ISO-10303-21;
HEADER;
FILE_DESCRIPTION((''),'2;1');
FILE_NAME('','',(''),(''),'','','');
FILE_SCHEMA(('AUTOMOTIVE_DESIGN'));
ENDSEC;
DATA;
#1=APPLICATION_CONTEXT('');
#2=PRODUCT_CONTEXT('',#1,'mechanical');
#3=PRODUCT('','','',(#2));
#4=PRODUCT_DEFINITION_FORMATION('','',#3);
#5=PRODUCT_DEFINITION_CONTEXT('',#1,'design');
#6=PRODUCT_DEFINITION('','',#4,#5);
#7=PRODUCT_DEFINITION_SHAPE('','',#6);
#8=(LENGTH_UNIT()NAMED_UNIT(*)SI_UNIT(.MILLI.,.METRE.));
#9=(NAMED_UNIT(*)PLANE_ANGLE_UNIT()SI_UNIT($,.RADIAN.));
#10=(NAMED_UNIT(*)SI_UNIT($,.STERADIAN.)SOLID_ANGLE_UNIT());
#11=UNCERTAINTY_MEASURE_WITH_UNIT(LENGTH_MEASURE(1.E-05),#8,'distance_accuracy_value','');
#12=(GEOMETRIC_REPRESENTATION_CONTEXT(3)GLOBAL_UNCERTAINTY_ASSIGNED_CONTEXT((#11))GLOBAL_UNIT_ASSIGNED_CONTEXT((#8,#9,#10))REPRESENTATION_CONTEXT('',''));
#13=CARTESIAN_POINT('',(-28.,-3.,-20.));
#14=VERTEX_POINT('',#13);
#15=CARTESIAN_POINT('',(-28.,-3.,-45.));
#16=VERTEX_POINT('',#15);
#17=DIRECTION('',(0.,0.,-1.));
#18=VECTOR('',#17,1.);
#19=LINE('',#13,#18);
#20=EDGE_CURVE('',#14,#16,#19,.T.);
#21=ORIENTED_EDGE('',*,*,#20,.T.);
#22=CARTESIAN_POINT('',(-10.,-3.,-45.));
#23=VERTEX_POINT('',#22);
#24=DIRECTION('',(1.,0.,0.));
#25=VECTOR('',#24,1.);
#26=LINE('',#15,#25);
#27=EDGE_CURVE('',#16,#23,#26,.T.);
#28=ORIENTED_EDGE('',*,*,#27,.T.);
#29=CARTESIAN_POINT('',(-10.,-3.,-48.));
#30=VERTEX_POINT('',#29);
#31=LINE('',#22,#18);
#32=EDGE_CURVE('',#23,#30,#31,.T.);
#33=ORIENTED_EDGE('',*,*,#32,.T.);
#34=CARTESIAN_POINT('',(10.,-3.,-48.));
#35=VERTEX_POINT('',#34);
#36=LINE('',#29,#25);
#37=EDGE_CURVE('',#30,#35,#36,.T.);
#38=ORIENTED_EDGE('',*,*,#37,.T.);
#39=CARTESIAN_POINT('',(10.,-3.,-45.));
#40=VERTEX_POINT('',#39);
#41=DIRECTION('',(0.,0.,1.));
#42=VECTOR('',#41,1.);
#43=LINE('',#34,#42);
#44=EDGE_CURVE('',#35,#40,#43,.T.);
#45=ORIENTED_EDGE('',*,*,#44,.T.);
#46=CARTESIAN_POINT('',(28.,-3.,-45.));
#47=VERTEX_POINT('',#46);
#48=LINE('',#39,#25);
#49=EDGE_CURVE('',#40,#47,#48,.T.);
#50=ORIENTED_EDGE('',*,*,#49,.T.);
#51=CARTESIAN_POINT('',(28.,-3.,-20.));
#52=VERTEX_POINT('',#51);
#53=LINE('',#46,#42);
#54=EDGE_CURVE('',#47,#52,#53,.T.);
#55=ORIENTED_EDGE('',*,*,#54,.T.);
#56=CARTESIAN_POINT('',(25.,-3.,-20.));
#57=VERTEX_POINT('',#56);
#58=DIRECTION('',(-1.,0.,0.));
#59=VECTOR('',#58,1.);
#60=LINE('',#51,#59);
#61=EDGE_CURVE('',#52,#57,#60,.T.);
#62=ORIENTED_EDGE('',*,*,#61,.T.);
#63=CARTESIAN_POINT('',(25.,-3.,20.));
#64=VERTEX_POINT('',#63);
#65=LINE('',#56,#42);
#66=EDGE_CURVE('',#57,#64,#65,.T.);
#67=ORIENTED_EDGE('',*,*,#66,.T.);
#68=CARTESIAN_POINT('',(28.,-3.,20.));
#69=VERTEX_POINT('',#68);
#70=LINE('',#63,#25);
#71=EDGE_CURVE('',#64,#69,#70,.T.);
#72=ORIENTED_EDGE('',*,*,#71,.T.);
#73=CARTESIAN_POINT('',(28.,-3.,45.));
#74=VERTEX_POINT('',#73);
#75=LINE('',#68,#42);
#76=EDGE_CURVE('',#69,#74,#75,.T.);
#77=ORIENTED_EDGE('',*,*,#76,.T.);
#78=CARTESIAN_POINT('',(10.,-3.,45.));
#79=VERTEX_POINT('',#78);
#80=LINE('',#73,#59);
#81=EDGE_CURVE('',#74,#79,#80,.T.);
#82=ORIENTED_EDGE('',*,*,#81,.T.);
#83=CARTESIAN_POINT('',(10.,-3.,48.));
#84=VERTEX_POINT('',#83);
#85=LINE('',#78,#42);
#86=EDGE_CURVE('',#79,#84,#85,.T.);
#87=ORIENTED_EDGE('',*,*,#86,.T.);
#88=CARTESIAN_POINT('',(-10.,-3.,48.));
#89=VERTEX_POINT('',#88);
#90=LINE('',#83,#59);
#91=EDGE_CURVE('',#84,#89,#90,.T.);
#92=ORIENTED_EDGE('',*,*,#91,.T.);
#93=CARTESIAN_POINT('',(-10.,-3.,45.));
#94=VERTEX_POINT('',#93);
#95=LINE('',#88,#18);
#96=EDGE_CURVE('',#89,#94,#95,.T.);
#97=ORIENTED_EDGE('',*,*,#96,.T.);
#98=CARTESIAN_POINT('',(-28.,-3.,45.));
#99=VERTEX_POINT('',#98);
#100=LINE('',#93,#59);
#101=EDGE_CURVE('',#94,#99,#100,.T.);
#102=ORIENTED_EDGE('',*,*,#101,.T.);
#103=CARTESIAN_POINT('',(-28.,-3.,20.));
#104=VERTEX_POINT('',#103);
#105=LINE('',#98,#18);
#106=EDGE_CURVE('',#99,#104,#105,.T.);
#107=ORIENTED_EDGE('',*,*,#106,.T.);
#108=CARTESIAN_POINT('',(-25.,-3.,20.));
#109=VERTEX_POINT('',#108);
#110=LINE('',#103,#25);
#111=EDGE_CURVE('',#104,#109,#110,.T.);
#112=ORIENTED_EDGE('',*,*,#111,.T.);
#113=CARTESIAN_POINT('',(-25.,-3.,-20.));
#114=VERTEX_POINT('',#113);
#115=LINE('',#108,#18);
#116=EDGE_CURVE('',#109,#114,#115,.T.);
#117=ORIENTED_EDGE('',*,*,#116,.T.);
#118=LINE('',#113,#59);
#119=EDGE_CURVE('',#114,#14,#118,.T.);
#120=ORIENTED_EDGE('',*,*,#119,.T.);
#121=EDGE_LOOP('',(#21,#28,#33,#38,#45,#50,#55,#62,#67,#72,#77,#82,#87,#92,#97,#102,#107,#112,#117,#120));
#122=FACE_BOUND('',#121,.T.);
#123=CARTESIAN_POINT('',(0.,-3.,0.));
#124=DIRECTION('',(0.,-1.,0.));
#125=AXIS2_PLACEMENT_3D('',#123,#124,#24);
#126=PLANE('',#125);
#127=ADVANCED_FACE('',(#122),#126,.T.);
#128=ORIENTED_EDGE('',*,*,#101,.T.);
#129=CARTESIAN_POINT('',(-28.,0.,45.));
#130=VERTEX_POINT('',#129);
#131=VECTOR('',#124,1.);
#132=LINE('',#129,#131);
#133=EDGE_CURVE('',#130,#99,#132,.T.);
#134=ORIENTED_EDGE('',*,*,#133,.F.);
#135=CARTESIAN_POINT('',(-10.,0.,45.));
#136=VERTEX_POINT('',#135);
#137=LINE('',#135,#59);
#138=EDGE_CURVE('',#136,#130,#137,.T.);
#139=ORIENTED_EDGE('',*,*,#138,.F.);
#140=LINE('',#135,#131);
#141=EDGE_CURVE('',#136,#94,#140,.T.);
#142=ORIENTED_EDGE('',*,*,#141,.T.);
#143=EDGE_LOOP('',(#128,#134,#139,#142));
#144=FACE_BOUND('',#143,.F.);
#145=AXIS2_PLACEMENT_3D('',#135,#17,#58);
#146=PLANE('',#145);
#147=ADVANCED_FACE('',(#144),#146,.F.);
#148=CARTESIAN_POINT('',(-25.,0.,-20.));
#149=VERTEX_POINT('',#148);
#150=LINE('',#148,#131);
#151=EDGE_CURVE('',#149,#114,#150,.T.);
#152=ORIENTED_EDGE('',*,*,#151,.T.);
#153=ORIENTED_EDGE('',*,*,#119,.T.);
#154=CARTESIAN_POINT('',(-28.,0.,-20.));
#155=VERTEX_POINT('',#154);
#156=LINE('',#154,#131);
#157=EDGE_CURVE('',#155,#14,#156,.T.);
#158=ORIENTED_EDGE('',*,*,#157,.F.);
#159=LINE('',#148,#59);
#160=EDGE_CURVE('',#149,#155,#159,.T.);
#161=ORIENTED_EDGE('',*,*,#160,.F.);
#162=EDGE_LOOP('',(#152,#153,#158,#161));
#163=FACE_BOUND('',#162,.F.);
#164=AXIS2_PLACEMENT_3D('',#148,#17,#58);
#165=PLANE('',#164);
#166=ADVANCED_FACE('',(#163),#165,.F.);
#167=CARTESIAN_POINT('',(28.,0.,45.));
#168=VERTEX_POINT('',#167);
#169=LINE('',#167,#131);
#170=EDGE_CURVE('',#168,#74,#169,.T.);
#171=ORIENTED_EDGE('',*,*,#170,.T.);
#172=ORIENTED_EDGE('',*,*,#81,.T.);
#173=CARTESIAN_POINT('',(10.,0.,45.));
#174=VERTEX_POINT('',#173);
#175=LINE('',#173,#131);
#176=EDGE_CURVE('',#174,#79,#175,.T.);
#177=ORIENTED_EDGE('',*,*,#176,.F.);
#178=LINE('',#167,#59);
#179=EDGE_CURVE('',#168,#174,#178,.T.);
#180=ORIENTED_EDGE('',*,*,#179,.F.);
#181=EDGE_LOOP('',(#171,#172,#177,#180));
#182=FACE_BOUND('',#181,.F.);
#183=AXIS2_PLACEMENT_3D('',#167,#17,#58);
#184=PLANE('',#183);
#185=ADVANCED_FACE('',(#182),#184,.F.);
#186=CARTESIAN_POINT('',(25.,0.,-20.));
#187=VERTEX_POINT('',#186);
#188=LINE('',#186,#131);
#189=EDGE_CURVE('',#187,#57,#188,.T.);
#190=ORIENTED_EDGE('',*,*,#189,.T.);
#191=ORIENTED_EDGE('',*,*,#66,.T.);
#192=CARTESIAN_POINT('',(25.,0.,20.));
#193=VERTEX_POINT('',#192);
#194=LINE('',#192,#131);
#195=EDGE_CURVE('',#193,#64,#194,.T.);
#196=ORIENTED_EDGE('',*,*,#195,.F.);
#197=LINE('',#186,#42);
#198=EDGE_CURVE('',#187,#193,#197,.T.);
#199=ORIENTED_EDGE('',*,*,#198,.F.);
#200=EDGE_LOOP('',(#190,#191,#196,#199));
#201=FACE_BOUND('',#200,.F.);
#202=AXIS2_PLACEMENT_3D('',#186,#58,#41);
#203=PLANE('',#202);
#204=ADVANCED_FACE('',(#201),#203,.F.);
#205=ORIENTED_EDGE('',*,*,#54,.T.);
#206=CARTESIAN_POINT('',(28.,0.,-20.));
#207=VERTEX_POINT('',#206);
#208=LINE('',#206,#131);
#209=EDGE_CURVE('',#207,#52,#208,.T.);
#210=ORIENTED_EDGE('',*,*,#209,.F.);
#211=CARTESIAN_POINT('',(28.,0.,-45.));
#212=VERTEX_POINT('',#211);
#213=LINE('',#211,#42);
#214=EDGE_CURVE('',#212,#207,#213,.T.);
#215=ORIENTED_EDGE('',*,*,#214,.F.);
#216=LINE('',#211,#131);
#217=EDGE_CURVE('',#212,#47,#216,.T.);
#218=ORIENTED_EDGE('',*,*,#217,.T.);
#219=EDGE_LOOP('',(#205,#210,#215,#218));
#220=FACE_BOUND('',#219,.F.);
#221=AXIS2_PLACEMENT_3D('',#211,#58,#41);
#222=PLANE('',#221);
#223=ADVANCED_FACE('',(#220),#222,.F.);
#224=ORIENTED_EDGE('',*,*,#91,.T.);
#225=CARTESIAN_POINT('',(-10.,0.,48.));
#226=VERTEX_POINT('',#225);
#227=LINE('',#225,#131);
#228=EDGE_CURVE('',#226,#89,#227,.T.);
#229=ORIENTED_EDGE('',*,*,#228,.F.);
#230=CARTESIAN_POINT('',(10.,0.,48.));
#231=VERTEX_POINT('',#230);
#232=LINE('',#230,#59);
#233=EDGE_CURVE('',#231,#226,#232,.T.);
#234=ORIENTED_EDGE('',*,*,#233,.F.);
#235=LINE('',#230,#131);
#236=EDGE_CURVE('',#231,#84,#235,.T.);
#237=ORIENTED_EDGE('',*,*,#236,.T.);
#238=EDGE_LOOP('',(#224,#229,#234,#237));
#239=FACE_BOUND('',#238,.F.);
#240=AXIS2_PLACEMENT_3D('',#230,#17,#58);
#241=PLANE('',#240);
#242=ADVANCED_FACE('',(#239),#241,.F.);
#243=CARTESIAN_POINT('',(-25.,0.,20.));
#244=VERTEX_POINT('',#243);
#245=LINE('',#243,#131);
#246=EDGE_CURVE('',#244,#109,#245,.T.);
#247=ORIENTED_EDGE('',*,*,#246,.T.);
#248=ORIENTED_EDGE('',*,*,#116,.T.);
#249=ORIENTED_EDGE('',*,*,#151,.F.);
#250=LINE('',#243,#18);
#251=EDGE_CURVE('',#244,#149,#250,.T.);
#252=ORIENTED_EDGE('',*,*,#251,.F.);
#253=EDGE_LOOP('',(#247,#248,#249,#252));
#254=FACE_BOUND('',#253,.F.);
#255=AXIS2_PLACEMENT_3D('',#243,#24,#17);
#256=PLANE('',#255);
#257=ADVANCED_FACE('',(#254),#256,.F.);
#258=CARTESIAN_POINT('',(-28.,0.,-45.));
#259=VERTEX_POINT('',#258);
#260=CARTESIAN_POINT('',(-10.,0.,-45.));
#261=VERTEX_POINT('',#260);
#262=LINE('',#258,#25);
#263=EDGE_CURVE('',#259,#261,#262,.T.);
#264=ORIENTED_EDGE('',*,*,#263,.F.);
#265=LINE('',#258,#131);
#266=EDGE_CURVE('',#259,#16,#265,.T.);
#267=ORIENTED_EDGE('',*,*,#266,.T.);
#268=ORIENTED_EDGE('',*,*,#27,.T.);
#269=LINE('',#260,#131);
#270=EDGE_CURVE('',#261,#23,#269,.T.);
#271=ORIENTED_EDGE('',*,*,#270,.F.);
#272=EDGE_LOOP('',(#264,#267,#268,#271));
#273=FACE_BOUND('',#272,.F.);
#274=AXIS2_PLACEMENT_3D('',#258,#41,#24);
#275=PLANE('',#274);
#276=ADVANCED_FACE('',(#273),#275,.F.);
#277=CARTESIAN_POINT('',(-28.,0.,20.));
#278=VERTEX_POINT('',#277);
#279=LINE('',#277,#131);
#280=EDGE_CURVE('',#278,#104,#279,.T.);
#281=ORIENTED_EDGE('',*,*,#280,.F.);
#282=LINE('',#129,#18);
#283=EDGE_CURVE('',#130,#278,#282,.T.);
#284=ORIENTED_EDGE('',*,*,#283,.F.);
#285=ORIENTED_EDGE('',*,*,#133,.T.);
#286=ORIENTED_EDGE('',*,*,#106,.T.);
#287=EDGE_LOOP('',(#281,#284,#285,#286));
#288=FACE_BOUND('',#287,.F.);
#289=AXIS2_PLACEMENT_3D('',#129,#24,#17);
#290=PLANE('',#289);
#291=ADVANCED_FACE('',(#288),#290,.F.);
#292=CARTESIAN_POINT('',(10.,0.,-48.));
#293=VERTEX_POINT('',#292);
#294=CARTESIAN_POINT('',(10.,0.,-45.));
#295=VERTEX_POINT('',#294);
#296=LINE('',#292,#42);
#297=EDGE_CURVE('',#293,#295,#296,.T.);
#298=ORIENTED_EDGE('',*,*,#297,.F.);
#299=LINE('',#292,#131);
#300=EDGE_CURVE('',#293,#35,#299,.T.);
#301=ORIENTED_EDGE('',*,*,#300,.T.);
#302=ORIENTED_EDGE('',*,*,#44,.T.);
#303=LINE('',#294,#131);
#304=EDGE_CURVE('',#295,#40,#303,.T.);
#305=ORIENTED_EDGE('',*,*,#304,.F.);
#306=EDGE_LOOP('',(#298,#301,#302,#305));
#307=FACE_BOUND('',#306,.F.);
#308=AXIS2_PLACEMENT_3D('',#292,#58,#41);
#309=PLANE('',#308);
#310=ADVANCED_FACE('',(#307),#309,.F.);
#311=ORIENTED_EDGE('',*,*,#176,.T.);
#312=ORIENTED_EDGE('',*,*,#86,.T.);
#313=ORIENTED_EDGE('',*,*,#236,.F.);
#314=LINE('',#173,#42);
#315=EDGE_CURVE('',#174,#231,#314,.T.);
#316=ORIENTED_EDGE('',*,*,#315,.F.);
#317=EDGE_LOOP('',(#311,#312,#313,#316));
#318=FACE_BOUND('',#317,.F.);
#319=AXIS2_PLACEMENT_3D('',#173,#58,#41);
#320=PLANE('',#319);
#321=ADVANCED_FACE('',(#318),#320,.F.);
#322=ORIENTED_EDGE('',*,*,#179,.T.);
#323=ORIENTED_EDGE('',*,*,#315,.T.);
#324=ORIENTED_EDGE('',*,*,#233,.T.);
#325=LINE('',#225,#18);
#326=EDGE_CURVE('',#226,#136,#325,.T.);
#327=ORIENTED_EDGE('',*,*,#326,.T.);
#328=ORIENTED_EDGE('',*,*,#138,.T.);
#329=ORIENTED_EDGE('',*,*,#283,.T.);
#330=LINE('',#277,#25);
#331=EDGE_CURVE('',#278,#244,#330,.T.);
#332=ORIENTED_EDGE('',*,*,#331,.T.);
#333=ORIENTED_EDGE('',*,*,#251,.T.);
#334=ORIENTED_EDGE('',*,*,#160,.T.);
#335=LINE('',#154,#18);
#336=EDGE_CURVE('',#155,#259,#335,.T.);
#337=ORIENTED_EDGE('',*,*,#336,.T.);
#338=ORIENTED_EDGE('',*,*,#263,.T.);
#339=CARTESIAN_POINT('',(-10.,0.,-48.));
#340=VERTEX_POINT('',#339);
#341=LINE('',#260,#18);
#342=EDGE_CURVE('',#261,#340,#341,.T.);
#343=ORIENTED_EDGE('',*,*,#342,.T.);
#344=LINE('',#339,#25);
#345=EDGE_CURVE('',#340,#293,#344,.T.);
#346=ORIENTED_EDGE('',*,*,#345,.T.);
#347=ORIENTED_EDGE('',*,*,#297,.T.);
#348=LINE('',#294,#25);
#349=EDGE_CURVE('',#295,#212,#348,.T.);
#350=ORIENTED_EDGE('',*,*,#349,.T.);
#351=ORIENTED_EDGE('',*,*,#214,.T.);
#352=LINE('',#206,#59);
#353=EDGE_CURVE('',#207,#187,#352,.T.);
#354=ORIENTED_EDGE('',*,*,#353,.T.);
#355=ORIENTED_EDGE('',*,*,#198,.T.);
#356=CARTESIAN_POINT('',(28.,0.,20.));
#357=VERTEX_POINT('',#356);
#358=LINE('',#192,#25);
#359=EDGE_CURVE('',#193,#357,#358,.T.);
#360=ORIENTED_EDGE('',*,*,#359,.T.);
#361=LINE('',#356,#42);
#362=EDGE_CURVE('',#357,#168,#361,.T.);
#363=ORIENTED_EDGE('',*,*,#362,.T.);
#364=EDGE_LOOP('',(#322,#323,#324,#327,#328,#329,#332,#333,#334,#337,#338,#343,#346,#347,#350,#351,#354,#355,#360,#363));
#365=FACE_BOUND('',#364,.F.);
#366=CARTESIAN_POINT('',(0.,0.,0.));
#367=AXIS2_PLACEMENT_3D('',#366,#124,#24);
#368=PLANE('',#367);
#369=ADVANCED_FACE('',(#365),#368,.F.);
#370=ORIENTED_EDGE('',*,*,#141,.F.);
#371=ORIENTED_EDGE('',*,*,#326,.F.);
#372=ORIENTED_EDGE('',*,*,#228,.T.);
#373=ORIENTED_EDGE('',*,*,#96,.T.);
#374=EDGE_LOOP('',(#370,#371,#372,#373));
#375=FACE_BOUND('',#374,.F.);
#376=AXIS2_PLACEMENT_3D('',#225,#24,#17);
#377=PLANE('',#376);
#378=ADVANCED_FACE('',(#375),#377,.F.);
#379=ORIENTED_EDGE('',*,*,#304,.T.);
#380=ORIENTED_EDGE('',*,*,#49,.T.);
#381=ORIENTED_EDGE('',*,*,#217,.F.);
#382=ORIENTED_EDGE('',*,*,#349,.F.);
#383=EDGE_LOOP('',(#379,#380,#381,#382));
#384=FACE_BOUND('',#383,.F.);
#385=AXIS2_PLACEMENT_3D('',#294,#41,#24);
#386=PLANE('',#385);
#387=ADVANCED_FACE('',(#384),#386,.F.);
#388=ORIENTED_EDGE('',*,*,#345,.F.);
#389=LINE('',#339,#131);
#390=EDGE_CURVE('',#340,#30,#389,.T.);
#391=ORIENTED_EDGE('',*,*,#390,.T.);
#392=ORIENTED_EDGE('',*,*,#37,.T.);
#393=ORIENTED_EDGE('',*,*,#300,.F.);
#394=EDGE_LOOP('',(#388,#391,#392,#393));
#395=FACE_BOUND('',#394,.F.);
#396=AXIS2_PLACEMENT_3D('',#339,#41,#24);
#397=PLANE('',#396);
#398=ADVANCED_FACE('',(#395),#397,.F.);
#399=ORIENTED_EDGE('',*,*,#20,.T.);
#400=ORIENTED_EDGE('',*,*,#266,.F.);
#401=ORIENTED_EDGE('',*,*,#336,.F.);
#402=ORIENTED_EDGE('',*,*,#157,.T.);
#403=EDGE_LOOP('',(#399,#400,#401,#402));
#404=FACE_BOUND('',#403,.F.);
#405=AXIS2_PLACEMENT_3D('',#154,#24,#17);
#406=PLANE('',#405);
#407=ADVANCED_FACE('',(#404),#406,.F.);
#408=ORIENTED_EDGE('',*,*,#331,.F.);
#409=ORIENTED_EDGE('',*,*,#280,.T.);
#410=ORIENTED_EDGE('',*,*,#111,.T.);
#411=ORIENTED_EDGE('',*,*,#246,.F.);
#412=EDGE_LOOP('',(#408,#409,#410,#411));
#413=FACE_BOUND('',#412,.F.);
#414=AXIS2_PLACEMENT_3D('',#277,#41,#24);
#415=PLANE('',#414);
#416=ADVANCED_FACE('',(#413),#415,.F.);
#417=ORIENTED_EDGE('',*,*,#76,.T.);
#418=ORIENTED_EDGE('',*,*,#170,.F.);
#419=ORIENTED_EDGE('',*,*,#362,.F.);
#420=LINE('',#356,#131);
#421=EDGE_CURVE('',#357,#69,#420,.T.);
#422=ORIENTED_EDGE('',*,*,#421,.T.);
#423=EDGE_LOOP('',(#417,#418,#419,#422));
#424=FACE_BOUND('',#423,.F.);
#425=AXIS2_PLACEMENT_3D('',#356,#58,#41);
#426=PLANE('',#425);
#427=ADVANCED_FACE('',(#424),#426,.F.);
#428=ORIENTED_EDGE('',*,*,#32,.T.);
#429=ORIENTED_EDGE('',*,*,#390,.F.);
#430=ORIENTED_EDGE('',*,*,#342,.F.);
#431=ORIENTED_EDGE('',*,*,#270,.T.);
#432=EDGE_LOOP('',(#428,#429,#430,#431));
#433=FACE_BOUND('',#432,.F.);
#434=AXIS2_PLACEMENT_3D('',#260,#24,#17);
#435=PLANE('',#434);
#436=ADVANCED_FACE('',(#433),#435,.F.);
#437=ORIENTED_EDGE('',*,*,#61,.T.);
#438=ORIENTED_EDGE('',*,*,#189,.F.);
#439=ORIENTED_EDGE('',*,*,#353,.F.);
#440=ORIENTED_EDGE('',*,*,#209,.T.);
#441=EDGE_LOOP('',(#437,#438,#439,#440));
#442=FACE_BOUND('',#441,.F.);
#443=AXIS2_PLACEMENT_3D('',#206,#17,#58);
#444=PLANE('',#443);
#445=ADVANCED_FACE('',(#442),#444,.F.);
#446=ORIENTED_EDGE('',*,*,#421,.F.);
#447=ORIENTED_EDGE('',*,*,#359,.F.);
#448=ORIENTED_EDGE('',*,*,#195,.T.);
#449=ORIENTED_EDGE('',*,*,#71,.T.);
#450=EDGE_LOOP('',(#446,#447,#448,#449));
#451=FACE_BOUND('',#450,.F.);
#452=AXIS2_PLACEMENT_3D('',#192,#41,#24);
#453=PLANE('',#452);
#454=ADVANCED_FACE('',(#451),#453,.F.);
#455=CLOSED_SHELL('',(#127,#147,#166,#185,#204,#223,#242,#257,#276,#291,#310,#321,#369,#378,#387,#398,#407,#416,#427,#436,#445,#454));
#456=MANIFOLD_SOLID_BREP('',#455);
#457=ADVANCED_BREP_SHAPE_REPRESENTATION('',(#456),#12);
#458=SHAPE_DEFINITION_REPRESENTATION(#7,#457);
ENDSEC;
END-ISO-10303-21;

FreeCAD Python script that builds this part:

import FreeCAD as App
import Part
import Sketcher
Q = App.Units.Quantity

doc = App.newDocument("Part")
body = doc.addObject("PartDesign::Body", "Body")

# Sketch on XZ plane
sketch1 = body.newObject("Sketcher::SketchObject", "Sketch")
sketch1.AttachmentSupport = (doc.getObject("XZ_Plane"), [""])
sketch1.MapMode = "FlatFace"
sketch1.addGeometry(Part.LineSegment(App.Vector(10, 48, 0), App.Vector(-10, 48, 0)), False)
sketch1.addGeometry(Part.LineSegment(App.Vector(-10, 48, 0), App.Vector(-10, 45, 0)), False)
sketch1.addGeometry(Part.LineSegment(App.Vector(-10, 45, 0), App.Vector(-28, 45, 0)), False)
sketch1.addGeometry(Part.LineSegment(App.Vector(-28, 45, 0), App.Vector(-28, 20, 0)), False)
sketch1.addGeometry(Part.LineSegment(App.Vector(-28, 20, 0), App.Vector(-25, 20, 0)), False)
sketch1.addGeometry(Part.LineSegment(App.Vector(-25, 20, 0), App.Vector(-25, -20, 0)), False)
sketch1.addGeometry(Part.LineSegment(App.Vector(-25, -20, 0), App.Vector(-28, -20, 0)), False)
sketch1.addGeometry(Part.LineSegment(App.Vector(-28, -20, 0), App.Vector(-28, -45, 0)), False)
sketch1.addGeometry(Part.LineSegment(App.Vector(-28, -45, 0), App.Vector(-10, -45, 0)), False)
sketch1.addGeometry(Part.LineSegment(App.Vector(-10, -45, 0), App.Vector(-10, -48, 0)), False)
sketch1.addGeometry(Part.LineSegment(App.Vector(-10, -48, 0), App.Vector(10, -48, 0)), False)
sketch1.addGeometry(Part.LineSegment(App.Vector(10, -48, 0), App.Vector(10, -45, 0)), False)
sketch1.addGeometry(Part.LineSegment(App.Vector(10, -45, 0), App.Vector(28, -45, 0)), False)
sketch1.addGeometry(Part.LineSegment(App.Vector(28, -45, 0), App.Vector(28, -20, 0)), False)
sketch1.addGeometry(Part.LineSegment(App.Vector(28, -20, 0), App.Vector(25, -20, 0)), False)
sketch1.addGeometry(Part.LineSegment(App.Vector(25, -20, 0), App.Vector(25, 20, 0)), False)
sketch1.addGeometry(Part.LineSegment(App.Vector(25, 20, 0), App.Vector(28, 20, 0)), False)
sketch1.addGeometry(Part.LineSegment(App.Vector(28, 20, 0), App.Vector(28, 45, 0)), False)
sketch1.addGeometry(Part.LineSegment(App.Vector(28, 45, 0), App.Vector(10, 45, 0)), False)
sketch1.addGeometry(Part.LineSegment(App.Vector(10, 45, 0), App.Vector(10, 48, 0)), False)
sketch1.addConstraint(Sketcher.Constraint("Coincident", 0, 2, 1, 1))
sketch1.addConstraint(Sketcher.Constraint("Coincident", 1, 2, 2, 1))
sketch1.addConstraint(Sketcher.Constraint("Coincident", 2, 2, 3, 1))
sketch1.addConstraint(Sketcher.Constraint("Coincident", 3, 2, 4, 1))
sketch1.addConstraint(Sketcher.Constraint("Coincident", 4, 2, 5, 1))
sketch1.addConstraint(Sketcher.Constraint("Coincident", 5, 2, 6, 1))
sketch1.addConstraint(Sketcher.Constraint("Coincident", 6, 2, 7, 1))
sketch1.addConstraint(Sketcher.Constraint("Coincident", 7, 2, 8, 1))
sketch1.addConstraint(Sketcher.Constraint("Coincident", 8, 2, 9, 1))
sketch1.addConstraint(Sketcher.Constraint("Coincident", 9, 2, 10, 1))
sketch1.addConstraint(Sketcher.Constraint("Coincident", 10, 2, 11, 1))
sketch1.addConstraint(Sketcher.Constraint("Coincident", 11, 2, 12, 1))
sketch1.addConstraint(Sketcher.Constraint("Coincident", 12, 2, 13, 1))
sketch1.addConstraint(Sketcher.Constraint("Coincident", 13, 2, 14, 1))
sketch1.addConstraint(Sketcher.Constraint("Coincident", 14, 2, 15, 1))
sketch1.addConstraint(Sketcher.Constraint("Coincident", 15, 2, 16, 1))
sketch1.addConstraint(Sketcher.Constraint("Coincident", 16, 2, 17, 1))
sketch1.addConstraint(Sketcher.Constraint("Coincident", 17, 2, 18, 1))
sketch1.addConstraint(Sketcher.Constraint("Coincident", 18, 2, 19, 1))
sketch1.addConstraint(Sketcher.Constraint("Coincident", 19, 2, 0, 1))
sketch1.addConstraint(Sketcher.Constraint("Horizontal", 0))
sketch1.addConstraint(Sketcher.Constraint("Vertical", 1))
sketch1.addConstraint(Sketcher.Constraint("Horizontal", 2))
sketch1.addConstraint(Sketcher.Constraint("Vertical", 3))
sketch1.addConstraint(Sketcher.Constraint("Horizontal", 4))
sketch1.addConstraint(Sketcher.Constraint("Vertical", 5))
sketch1.addConstraint(Sketcher.Constraint("Horizontal", 6))
sketch1.addConstraint(Sketcher.Constraint("Vertical", 7))
sketch1.addConstraint(Sketcher.Constraint("Horizontal", 8))
sketch1.addConstraint(Sketcher.Constraint("Vertical", 9))
sketch1.addConstraint(Sketcher.Constraint("Horizontal", 10))
sketch1.addConstraint(Sketcher.Constraint("Vertical", 11))
sketch1.addConstraint(Sketcher.Constraint("Horizontal", 12))
sketch1.addConstraint(Sketcher.Constraint("Vertical", 13))
sketch1.addConstraint(Sketcher.Constraint("Horizontal", 14))
sketch1.addConstraint(Sketcher.Constraint("Vertical", 15))
sketch1.addConstraint(Sketcher.Constraint("Horizontal", 16))
sketch1.addConstraint(Sketcher.Constraint("Vertical", 17))
sketch1.addConstraint(Sketcher.Constraint("Horizontal", 18))
sketch1.addConstraint(Sketcher.Constraint("Vertical", 19))
sketch1.addConstraint(Sketcher.Constraint("Symmetric", 0, 2, 10, 2, -1, 1))
sketch1.addConstraint(Sketcher.Constraint("Symmetric", 2, 2, 12, 2, -1, 1))
sketch1.addConstraint(Sketcher.Constraint("Symmetric", 4, 2, 14, 2, -1, 1))
sketch1.addConstraint(Sketcher.Constraint("Symmetric", 6, 2, 16, 2, -1, 1))
sketch1.addConstraint(Sketcher.Constraint("Symmetric", 8, 2, 18, 2, -1, 1))
sketch1.addConstraint(Sketcher.Constraint("Symmetric", 8, 2, 11, 2, -2))
sketch1.addConstraint(Sketcher.Constraint("Symmetric", 6, 2, 13, 2, -2))
sketch1.addConstraint(Sketcher.Constraint("Equal", 16, 1))
sketch1.addConstraint(Sketcher.Constraint("DistanceX", 0, 2, 0, 1, Q("20 mm")))
sketch1.addConstraint(Sketcher.Constraint("DistanceX", 2, 2, 2, 1, Q("18 mm")))
sketch1.addConstraint(Sketcher.Constraint("DistanceX", 4, 1, 4, 2, Q("3 mm")))
sketch1.addConstraint(Sketcher.Constraint("DistanceY", 3, 2, 3, 1, Q("25 mm")))
sketch1.addConstraint(Sketcher.Constraint("DistanceY", 5, 2, 5, 1, Q("40 mm")))
pad1 = body.newObject("PartDesign::Pad", "Pad")
pad1.Profile = sketch1
pad1.Length = 3

doc.recompute()
